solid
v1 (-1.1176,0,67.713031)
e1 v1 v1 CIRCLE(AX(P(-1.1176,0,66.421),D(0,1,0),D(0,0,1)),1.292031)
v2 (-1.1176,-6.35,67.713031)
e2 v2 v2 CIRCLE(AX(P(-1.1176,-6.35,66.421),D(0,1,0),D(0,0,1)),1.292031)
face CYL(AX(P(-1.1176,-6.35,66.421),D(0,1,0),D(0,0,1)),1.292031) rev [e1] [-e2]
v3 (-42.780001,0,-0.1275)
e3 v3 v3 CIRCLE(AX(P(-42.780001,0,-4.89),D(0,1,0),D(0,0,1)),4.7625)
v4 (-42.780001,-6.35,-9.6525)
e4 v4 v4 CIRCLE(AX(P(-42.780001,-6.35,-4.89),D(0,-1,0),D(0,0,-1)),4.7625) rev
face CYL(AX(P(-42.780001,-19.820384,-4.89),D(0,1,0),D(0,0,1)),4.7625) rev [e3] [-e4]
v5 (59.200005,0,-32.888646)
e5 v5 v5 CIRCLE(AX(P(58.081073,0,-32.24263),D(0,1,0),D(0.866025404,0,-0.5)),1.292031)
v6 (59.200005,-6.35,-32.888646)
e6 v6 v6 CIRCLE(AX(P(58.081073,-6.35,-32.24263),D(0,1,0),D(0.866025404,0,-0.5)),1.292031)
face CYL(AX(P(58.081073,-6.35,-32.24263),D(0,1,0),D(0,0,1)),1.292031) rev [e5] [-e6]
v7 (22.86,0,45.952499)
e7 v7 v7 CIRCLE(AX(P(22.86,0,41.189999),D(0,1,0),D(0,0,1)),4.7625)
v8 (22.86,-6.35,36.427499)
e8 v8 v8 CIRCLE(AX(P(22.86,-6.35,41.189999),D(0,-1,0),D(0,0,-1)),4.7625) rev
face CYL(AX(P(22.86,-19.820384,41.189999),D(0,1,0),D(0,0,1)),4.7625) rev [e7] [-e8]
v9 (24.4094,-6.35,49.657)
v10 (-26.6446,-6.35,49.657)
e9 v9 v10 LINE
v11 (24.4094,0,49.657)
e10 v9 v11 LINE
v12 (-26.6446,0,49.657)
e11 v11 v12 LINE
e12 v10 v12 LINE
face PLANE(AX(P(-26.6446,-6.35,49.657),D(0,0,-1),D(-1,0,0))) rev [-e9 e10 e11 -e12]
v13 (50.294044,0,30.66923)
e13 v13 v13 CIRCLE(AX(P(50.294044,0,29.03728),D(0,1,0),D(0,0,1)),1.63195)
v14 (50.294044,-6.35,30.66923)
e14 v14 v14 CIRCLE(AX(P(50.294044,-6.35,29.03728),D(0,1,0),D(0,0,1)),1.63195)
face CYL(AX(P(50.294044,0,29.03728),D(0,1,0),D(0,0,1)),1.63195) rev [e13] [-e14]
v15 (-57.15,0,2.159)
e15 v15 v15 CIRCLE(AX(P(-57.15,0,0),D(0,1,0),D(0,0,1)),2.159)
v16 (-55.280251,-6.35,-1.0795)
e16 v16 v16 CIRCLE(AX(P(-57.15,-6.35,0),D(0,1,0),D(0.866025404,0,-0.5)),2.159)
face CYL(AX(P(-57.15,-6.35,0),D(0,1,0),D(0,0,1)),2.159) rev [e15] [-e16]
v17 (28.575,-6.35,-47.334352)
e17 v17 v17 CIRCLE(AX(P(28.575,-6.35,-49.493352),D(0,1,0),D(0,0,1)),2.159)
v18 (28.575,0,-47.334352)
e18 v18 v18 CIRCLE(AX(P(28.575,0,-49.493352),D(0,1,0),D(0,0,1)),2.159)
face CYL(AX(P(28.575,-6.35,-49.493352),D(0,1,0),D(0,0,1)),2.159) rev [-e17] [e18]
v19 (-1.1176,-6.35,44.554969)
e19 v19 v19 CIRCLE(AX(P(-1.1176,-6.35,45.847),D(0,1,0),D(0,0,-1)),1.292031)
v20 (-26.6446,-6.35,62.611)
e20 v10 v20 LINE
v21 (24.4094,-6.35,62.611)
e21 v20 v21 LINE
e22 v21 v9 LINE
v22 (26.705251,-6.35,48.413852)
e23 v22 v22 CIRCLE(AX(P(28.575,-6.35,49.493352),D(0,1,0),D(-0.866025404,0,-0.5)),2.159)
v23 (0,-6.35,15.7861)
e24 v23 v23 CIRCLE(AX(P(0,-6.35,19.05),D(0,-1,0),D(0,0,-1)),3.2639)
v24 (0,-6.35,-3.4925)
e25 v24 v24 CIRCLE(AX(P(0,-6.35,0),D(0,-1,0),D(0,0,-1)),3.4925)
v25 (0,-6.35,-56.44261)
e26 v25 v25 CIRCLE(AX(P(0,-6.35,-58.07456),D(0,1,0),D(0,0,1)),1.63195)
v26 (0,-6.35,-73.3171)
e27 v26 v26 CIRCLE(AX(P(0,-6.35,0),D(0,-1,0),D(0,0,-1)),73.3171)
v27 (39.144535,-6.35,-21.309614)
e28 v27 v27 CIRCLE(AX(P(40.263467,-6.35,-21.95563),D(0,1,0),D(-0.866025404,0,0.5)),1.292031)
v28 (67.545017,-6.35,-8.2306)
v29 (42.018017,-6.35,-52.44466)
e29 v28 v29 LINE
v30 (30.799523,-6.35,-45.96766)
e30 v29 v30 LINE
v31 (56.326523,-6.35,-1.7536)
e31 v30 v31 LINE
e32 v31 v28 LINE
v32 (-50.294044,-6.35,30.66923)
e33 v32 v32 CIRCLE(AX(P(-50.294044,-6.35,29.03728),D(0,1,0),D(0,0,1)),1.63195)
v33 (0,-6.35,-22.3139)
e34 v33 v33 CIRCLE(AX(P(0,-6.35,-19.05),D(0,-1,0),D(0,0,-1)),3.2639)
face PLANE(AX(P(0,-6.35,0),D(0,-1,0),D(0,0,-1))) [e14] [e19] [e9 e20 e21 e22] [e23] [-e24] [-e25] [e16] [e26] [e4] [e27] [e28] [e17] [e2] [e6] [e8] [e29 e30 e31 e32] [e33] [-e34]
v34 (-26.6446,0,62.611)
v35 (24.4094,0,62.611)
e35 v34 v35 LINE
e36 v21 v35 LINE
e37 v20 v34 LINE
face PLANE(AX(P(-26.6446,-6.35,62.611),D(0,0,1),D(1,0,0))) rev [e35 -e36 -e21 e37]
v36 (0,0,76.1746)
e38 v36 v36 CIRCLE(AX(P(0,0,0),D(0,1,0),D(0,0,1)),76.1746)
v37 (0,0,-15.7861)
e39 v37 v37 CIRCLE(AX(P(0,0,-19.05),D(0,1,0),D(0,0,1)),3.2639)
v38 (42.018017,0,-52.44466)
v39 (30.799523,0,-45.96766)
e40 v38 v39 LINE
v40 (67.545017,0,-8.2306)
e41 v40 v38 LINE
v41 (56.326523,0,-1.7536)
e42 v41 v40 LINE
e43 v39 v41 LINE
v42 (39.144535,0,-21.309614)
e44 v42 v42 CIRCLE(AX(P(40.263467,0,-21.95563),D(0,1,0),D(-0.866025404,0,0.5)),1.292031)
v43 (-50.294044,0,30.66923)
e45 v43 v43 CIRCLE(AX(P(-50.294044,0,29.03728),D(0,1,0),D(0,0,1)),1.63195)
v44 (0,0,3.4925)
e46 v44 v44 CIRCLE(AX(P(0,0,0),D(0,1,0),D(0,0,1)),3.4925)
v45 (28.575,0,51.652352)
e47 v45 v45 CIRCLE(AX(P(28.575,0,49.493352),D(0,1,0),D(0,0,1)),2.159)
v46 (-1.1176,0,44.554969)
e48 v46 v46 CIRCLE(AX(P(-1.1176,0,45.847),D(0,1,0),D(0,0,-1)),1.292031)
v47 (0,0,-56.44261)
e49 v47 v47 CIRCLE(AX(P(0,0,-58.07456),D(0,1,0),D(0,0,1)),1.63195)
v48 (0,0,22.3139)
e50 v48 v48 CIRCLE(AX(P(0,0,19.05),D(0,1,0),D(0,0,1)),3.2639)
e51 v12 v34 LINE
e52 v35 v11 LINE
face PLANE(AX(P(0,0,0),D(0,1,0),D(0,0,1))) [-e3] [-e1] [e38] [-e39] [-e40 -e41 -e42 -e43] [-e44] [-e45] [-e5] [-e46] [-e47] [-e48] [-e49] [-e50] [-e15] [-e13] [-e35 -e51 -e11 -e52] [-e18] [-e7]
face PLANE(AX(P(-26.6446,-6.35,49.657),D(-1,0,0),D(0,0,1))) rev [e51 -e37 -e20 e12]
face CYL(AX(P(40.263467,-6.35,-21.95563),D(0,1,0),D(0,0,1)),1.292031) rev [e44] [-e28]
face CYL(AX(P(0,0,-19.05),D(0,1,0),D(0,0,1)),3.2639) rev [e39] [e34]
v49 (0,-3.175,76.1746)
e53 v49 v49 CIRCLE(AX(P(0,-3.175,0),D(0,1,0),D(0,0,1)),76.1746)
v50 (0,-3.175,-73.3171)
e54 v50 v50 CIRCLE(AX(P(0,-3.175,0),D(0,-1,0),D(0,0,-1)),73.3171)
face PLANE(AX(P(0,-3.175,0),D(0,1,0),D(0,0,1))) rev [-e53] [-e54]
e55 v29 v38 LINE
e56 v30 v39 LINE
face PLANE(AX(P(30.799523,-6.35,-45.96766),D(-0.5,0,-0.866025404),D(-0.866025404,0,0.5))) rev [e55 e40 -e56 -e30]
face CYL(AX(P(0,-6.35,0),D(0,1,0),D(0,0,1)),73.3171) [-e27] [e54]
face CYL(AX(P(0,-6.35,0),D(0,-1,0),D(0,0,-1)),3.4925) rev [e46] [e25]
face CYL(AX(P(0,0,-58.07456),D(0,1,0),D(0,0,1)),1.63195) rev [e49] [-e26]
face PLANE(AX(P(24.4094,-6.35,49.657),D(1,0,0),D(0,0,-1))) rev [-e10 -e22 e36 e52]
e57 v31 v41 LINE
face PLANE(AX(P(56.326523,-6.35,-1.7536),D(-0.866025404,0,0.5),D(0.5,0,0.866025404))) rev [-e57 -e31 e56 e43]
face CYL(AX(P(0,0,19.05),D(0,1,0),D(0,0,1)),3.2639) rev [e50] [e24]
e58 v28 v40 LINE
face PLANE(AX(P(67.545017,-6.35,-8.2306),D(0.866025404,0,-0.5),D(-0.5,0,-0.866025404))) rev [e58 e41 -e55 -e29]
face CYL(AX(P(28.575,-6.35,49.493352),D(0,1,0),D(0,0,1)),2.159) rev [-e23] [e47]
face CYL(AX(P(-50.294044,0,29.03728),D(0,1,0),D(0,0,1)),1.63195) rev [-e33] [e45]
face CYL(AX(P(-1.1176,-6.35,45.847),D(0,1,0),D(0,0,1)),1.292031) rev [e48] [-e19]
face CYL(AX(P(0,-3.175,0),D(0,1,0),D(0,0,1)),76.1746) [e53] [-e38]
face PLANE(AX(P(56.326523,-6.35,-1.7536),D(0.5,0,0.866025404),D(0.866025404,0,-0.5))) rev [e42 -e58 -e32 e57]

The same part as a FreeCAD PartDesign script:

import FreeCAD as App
import Part
import Sketcher

V = App.Vector
Q = App.Units.Quantity

doc = App.newDocument("Part")
body = doc.addObject("PartDesign::Body", "Body")

sketch1 = doc.addObject("Sketcher::SketchObject", "Sketch")
body.addObject(sketch1)
sketch1.AttachmentSupport = (doc.XZ_Plane, [""])
sketch1.MapMode = "FlatFace"
sketch1.addGeometry(Part.Circle(V(0, 0, 0), V(0, 0, 1), 76), False)
sketch1.addConstraint([
    Sketcher.Constraint("Coincident", 0, 3, -1, 1),
    Sketcher.Constraint("Diameter", 0, Q("5.998 in")),
])
pad1 = doc.addObject("PartDesign::Pad", "Pad")
body.addObject(pad1)
pad1.Profile = sketch1
pad1.Length = Q("0.125 in")

sketch2 = doc.addObject("Sketcher::SketchObject", "Sketch001")
body.addObject(sketch2)
sketch2.AttachmentSupport = (doc.XZ_Plane, [""])
sketch2.MapMode = "FlatFace"
sketch2.AttachmentOffset = App.Placement(V(0, 0, 0.125 * 25.4), App.Rotation())
sketch2.addGeometry(Part.Circle(V(0, 0, 0), V(0, 0, 1), 73), False)
sketch2.addConstraint([
    Sketcher.Constraint("Coincident", 0, 3, -1, 1),
    Sketcher.Constraint("Diameter", 0, Q("5.773 in")),
])
pad2 = doc.addObject("PartDesign::Pad", "Pad001")
body.addObject(pad2)
pad2.Profile = sketch2
pad2.Length = Q("0.125 in")

sketch3 = doc.addObject("Sketcher::SketchObject", "Sketch002")
body.addObject(sketch3)
sketch3.AttachmentSupport = (doc.XZ_Plane, [""])
sketch3.MapMode = "FlatFace"
sketch3.AttachmentOffset = App.Placement(V(0, 0, 0.25 * 25.4), App.Rotation())
sketch3.addGeometry(Part.Circle(V(0, 0, 0), V(0, 0, 1), 3.5), False)
sketch3.addConstraint([
    Sketcher.Constraint("Coincident", 0, 3, -1, 1),
    Sketcher.Constraint("Diameter", 0, Q("0.275 in")),
])
doc.recompute()
hole = doc.addObject("PartDesign::Hole", "Hole")
body.addObject(hole)
hole.Profile = sketch3
hole.ThreadType = "None"
hole.Diameter = Q("0.275 in")
hole.DepthType = "Dimension"
hole.Depth = Q("0.394 in")
hole.DrillPoint = "Angled"
hole.DrillPointAngle = 120

sketch4 = doc.addObject("Sketcher::SketchObject", "Sketch003")
body.addObject(sketch4)
sketch4.AttachmentSupport = (doc.YZ_Plane, [""])
sketch4.MapMode = "FlatFace"
sketch4.addGeometry([
    Part.LineSegment(V(-11.9, -19.1, 0), V(0, -19.1, 0)),
    Part.LineSegment(V(0, -19.1, 0), V(0, -15.8, 0)),
    Part.LineSegment(V(0, -15.8, 0), V(-10, -15.8, 0)),
    Part.LineSegment(V(-10, -15.8, 0), V(-11.9, -19.1, 0)),
], False)
sketch4.addGeometry(Part.LineSegment(V(0, -19.1, 0), V(-11.9, -19.1, 0)), True)
sketch4.addConstraint([
    Sketcher.Constraint("Coincident", 0, 2, 1, 1),
    Sketcher.Constraint("Coincident", 1, 2, 2, 1),
    Sketcher.Constraint("Coincident", 2, 2, 3, 1),
    Sketcher.Constraint("Coincident", 3, 2, 0, 1),
    Sketcher.Constraint("Horizontal", 0),
    Sketcher.Constraint("Vertical", 1),
    Sketcher.Constraint("Horizontal", 2),
    Sketcher.Constraint("Horizontal", 4),
    Sketcher.Constraint("Coincident", 4, 1, 0, 2),
    Sketcher.Constraint("PointOnObject", 0, 2, -2),
    Sketcher.Constraint("Equal", 0, 4),
    Sketcher.Constraint("Angle", 3, Q("-120 deg")),
    Sketcher.Constraint("DistanceX", 2, 2, 2, 1, Q("0.394 in")),
    Sketcher.Constraint("DistanceY", 0, 2, -1, 1, Q("0.75 in")),
    Sketcher.Constraint("DistanceY", 1, 1, 1, 2, Q("0.1285 in")),
])
groove = doc.addObject("PartDesign::Groove", "Groove")
body.addObject(groove)
groove.Profile = sketch4
groove.ReferenceAxis = (sketch4, ["Axis0"])
groove.Angle = 360
doc.recompute()

mirrored = doc.addObject("PartDesign::Mirrored", "Mirrored")
body.addObject(mirrored)
mirrored.Originals = [groove]
mirrored.MirrorPlane = (doc.XY_Plane, [""])
body.Tip = mirrored

sketch5 = doc.addObject("Sketcher::SketchObject", "Sketch004")
body.addObject(sketch5)
sketch5.AttachmentSupport = (doc.XZ_Plane, [""])
sketch5.MapMode = "FlatFace"
sketch5.addGeometry([
    Part.Circle(V(-1.1, 66.4, 0), V(0, 0, 1), 1.3),
    Part.Circle(V(-1.1, 45.8, 0), V(0, 0, 1), 1.3),
    Part.LineSegment(V(-26.6, 49.7, 0), V(-26.6, 62.6, 0)),
    Part.LineSegment(V(-26.6, 62.6, 0), V(24.4, 62.6, 0)),
    Part.LineSegment(V(24.4, 62.6, 0), V(24.4, 49.7, 0)),
    Part.LineSegment(V(24.4, 49.7, 0), V(-26.6, 49.7, 0)),
], False)
sketch5.addConstraint([
    Sketcher.Constraint("Coincident", 2, 2, 3, 1),
    Sketcher.Constraint("Coincident", 3, 2, 4, 1),
    Sketcher.Constraint("Coincident", 4, 2, 5, 1),
    Sketcher.Constraint("Coincident", 5, 2, 2, 1),
    Sketcher.Constraint("Vertical", 2),
    Sketcher.Constraint("Horizontal", 3),
    Sketcher.Constraint("Vertical", 4),
    Sketcher.Constraint("Horizontal", 5),
    Sketcher.Constraint("Equal", 0, 1),
    Sketcher.Constraint("Vertical", 0, 3, 1, 3),
    Sketcher.Constraint("DistanceX", 3, 1, 3, 2, Q("2.01 in")),
    Sketcher.Constraint("DistanceY", 2, 1, 2, 2, Q("0.51 in")),
    Sketcher.Constraint("DistanceY", 1, 3, 0, 3, Q("0.81 in")),
    Sketcher.Constraint("DistanceY", 2, 2, 0, 3, Q("0.15 in")),
    Sketcher.Constraint("DistanceX", 0, 3, -1, 1, Q("0.044 in")),
    Sketcher.Constraint("DistanceY", -1, 1, 0, 3, Q("2.615 in")),
    Sketcher.Constraint("DistanceX", 2, 2, -1, 1, Q("1.049 in")),
    Sketcher.Constraint("Diameter", 0, 2.584062),
])
pocket1 = doc.addObject("PartDesign::Pocket", "Pocket")
body.addObject(pocket1)
pocket1.Profile = sketch5
pocket1.Type = "ThroughAll"
pocket1.Reversed = True

sketch6 = doc.addObject("Sketcher::SketchObject", "Sketch005")
body.addObject(sketch6)
sketch6.AttachmentSupport = (doc.XZ_Plane, [""])
sketch6.MapMode = "FlatFace"
sketch6.addGeometry(Part.Circle(V(28.6, -49.5, 0), V(0, 0, 1), 2.2), False)
sketch6.addConstraint([
    Sketcher.Constraint("Diameter", 0, Q("0.17 in")),
    Sketcher.Constraint("DistanceX", -1, 1, 0, 3, Q("1.125 in")),
    Sketcher.Constraint("DistanceY", 0, 3, -1, 1, 49.493352),
])
pocket2 = doc.addObject("PartDesign::Pocket", "Pocket001")
body.addObject(pocket2)
pocket2.Profile = sketch6
pocket2.Length = 217.828282
pocket2.Midplane = True
doc.recompute()

polarpattern = doc.addObject("PartDesign::PolarPattern", "PolarPattern")
body.addObject(polarpattern)
polarpattern.Originals = [pocket2]
polarpattern.Axis = (doc.Y_Axis, [""])
polarpattern.Angle = 360
polarpattern.Occurrences = 3
body.Tip = polarpattern

sketch7 = doc.addObject("Sketcher::SketchObject", "Sketch006")
body.addObject(sketch7)
sketch7.AttachmentSupport = (doc.XZ_Plane, [""])
sketch7.MapMode = "FlatFace"
sketch7.addGeometry([
    Part.Circle(V(-42.8, -4.9, 0), V(0, 0, 1), 4.8),
    Part.Circle(V(22.9, 41.2, 0), V(0, 0, 1), 4.8),
], False)
sketch7.addConstraint([
    Sketcher.Constraint("Equal", 0, 1),
    Sketcher.Constraint("Diameter", 0, Q("0.375 in")),
    Sketcher.Constraint("DistanceX", -1, 1, 1, 3, Q("0.9 in")),
    Sketcher.Constraint("DistanceX", 0, 3, -1, 1, 42.780001),
    Sketcher.Constraint("DistanceY", 0, 3, -1, 1, 4.89),
    Sketcher.Constraint("DistanceY", -1, 1, 1, 3, 41.189999),
])
pocket3 = doc.addObject("PartDesign::Pocket", "Pocket002")
body.addObject(pocket3)
pocket3.Profile = sketch7
pocket3.Length = Q("0.25 in")
pocket3.Reversed = True

sketch8 = doc.addObject("Sketcher::SketchObject", "Sketch007")
body.addObject(sketch8)
sketch8.AttachmentSupport = (doc.XZ_Plane, [""])
sketch8.MapMode = "FlatFace"
sketch8.addGeometry(Part.Circle(V(0, -58.1, 0), V(0, 0, 1), 1.6), False)
sketch8.addConstraint([
    Sketcher.Constraint("PointOnObject", 0, 3, -2),
    Sketcher.Constraint("Diameter", 0, Q("0.1285 in")),
    Sketcher.Constraint("DistanceY", 0, 3, -1, 1, Q("2.2864 in")),
])
doc.recompute()
hole2 = doc.addObject("PartDesign::Hole", "Hole001")
body.addObject(hole2)
hole2.Profile = sketch8
hole2.ThreadType = "None"
hole2.Diameter = Q("0.1285 in")
hole2.DepthType = "ThroughAll"
hole2.Reversed = True
doc.recompute()

polarpattern2 = doc.addObject("PartDesign::PolarPattern", "PolarPattern001")
body.addObject(polarpattern2)
polarpattern2.Originals = [hole2]
polarpattern2.Axis = (doc.Y_Axis, [""])
polarpattern2.Angle = 360
polarpattern2.Occurrences = 3
body.Tip = polarpattern2
doc.recompute()

polarpattern3 = doc.addObject("PartDesign::PolarPattern", "PolarPattern002")
body.addObject(polarpattern3)
polarpattern3.Originals = [pocket1]
polarpattern3.Axis = (doc.Y_Axis, [""])
polarpattern3.Angle = 120
polarpattern3.Occurrences = 2
body.Tip = polarpattern3

doc.recompute()
